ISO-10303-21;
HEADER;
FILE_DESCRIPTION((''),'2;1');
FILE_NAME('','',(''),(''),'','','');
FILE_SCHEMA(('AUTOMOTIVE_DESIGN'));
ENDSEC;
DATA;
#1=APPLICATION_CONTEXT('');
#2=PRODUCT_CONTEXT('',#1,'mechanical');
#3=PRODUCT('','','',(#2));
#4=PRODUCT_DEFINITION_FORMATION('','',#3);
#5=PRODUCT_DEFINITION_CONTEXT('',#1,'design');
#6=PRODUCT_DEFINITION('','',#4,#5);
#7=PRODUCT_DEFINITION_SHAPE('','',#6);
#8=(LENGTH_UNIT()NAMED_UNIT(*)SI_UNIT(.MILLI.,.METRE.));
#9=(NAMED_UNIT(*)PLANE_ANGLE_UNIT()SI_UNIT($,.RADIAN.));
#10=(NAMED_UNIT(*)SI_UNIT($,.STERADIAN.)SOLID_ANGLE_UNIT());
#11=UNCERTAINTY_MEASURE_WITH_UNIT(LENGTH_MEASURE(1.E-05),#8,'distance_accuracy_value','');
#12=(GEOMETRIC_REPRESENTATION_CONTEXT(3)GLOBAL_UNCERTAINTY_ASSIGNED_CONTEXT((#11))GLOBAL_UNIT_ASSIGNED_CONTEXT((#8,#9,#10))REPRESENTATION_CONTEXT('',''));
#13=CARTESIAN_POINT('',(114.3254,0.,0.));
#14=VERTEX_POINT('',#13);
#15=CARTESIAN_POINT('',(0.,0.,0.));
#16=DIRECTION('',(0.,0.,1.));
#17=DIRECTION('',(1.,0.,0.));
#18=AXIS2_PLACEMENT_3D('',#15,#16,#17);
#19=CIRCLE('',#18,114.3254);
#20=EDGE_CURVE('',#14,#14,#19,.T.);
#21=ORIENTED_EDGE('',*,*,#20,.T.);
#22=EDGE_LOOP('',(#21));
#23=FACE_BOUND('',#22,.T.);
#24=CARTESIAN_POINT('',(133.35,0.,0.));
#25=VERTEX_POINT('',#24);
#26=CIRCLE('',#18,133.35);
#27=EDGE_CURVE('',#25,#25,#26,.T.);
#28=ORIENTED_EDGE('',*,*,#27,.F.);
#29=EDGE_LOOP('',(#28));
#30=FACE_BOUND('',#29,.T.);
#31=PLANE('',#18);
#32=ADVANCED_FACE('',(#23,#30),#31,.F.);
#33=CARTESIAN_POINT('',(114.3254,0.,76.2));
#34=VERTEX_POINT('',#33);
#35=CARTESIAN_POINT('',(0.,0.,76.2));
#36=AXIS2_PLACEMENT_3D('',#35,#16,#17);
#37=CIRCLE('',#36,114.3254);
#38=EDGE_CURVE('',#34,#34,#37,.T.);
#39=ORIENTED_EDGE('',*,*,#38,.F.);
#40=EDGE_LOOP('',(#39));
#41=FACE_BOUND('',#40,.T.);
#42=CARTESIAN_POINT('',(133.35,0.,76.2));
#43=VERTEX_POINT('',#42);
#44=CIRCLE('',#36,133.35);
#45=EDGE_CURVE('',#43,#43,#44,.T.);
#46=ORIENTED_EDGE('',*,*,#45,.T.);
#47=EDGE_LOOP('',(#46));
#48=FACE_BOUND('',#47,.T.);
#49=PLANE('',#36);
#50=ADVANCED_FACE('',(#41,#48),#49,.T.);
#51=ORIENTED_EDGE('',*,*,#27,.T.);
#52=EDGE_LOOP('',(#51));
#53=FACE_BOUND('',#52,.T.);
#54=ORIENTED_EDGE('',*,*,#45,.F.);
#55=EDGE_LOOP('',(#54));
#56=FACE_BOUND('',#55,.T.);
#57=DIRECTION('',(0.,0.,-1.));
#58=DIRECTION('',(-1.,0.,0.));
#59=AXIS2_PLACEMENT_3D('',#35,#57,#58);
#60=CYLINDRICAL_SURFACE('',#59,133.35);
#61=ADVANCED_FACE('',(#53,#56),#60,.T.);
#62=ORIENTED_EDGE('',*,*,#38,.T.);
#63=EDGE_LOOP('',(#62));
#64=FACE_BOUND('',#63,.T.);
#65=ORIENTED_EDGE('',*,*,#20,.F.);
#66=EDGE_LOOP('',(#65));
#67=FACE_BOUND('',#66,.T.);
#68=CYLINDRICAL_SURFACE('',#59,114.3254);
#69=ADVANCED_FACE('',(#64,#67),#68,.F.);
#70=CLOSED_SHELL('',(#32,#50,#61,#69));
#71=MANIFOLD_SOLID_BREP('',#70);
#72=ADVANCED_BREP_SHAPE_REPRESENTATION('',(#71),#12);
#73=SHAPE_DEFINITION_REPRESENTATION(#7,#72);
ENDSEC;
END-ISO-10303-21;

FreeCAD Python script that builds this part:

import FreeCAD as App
import Part
import Sketcher
Q = App.Units.Quantity

doc = App.newDocument("Part")
params = doc.addObject("Spreadsheet::Sheet", "Params")
for row, (alias, value) in enumerate([
    ("sketch1_diameter", "10.5 in"),
    ("pad1_length", "3 in"),
    ("sketch2_diameter", "9.002 in"),
    ("pocket1_length", "3 in"),
], start=1):
    params.set(f"A{row}", alias)
    params.set(f"B{row}", "=" + value)
    params.setAlias(f"B{row}", alias)

body = doc.addObject("PartDesign::Body", "Body")

sketch1 = doc.addObject("Sketcher::SketchObject", "Sketch")
body.addObject(sketch1)
sketch1.AttachmentSupport = (doc.XY_Plane, [""])
sketch1.MapMode = "FlatFace"
sketch1.addGeometry(Part.Circle(App.Vector(0, 0, 0), App.Vector(0, 0, 1), 133), False)
sketch1.addConstraint([
    Sketcher.Constraint("Coincident", 0, 3, -1, 1),
    Sketcher.Constraint("Diameter", 0, Q("10.5 in")),
])
sketch1.setExpression("Constraints[1]", "Params.sketch1_diameter")
pad1 = doc.addObject("PartDesign::Pad", "Pad")
body.addObject(pad1)
pad1.Profile = sketch1
pad1.setExpression("Length", "Params.pad1_length")

sketch2 = doc.addObject("Sketcher::SketchObject", "Sketch001")
body.addObject(sketch2)
sketch2.AttachmentSupport = (doc.XY_Plane, [""])
sketch2.MapMode = "FlatFace"
sketch2.addGeometry(Part.Circle(App.Vector(0, 0, 0), App.Vector(0, 0, 1), 114), False)
sketch2.addConstraint([
    Sketcher.Constraint("Coincident", 0, 3, -1, 1),
    Sketcher.Constraint("Diameter", 0, Q("9.002 in")),
])
sketch2.setExpression("Constraints[1]", "Params.sketch2_diameter")
pocket1 = doc.addObject("PartDesign::Pocket", "Pocket")
body.addObject(pocket1)
pocket1.Profile = sketch2
pocket1.setExpression("Length", "Params.pocket1_length")
pocket1.Reversed = True

doc.recompute()
